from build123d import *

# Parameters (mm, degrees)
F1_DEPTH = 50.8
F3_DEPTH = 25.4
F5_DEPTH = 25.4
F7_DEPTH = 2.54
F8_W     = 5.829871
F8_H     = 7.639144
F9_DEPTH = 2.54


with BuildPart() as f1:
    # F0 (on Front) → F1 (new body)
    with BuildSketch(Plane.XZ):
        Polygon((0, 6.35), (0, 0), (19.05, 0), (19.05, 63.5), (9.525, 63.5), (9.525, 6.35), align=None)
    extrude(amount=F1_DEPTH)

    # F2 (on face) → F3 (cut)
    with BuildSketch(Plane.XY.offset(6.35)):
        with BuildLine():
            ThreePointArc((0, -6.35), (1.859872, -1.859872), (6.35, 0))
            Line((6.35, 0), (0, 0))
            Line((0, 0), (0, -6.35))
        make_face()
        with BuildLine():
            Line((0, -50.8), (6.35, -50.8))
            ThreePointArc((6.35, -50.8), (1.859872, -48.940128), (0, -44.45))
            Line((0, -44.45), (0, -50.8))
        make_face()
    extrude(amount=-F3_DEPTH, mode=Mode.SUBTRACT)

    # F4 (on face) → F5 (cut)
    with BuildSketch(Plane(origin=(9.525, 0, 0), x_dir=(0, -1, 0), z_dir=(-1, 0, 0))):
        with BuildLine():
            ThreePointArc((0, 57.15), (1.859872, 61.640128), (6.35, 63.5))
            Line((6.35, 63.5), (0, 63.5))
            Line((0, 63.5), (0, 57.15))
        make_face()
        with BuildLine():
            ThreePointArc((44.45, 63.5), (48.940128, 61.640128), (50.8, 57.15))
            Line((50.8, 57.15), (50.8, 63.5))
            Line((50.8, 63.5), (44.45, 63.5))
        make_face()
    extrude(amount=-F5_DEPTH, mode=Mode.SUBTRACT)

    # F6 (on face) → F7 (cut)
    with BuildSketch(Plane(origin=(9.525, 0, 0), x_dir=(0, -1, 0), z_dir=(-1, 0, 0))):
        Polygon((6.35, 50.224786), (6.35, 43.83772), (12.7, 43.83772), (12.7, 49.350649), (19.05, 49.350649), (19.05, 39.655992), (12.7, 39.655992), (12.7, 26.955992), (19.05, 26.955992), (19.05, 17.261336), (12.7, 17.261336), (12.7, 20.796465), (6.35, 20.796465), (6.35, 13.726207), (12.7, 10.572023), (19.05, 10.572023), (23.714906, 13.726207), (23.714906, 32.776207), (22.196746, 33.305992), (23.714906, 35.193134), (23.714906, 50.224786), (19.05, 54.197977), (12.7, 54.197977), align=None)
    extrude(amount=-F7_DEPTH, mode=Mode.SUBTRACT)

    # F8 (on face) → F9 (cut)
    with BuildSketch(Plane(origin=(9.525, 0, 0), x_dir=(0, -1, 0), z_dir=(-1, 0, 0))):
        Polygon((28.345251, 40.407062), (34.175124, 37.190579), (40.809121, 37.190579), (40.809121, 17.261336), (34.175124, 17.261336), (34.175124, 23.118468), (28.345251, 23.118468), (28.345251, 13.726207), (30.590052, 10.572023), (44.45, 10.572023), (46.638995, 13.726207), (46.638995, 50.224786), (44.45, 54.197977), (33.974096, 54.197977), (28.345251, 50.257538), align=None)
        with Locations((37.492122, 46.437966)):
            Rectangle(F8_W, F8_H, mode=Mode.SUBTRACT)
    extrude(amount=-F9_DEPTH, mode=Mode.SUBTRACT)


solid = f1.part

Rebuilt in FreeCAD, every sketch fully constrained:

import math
import FreeCAD as App
import Part
import Sketcher
Q = App.Units.Quantity


def add_polygon(sketch, points):
    """Adds a closed chain of lines whose ends are joined by coincident constraints."""
    first, n = sketch.GeometryCount, len(points)
    for a, b in zip(points, points[1:] + points[:1]):
        sketch.addGeometry(Part.LineSegment(App.Vector(*a, 0), App.Vector(*b, 0)), False)
    for i in range(n):
        sketch.addConstraint(Sketcher.Constraint("Coincident", first + i, 2, first + (i + 1) % n, 1))

doc = App.newDocument("Part")
body = doc.addObject("PartDesign::Body", "Body")

# Sketch on XZ plane
sketch1 = doc.addObject("Sketcher::SketchObject", "Sketch")
body.addObject(sketch1)
sketch1.AttachmentSupport = (doc.XZ_Plane, [""])
sketch1.MapMode = "FlatFace"
add_polygon(sketch1, [(0, 6), (0, 0), (19, 0), (19, 64), (10, 64), (10, 6)])  # lines 0-5
sketch1.addConstraint([
    Sketcher.Constraint("Vertical", 0),
    Sketcher.Constraint("Horizontal", 1),
    Sketcher.Constraint("Vertical", 2),
    Sketcher.Constraint("Horizontal", 3),
    Sketcher.Constraint("Vertical", 4),
    Sketcher.Constraint("Horizontal", 5),
    Sketcher.Constraint("Coincident", 0, 2, -1, 1),
    Sketcher.Constraint("Equal", 3, 5),
    Sketcher.Constraint("DistanceY", 2, 1, 2, 2, Q("2.5 in")),
    Sketcher.Constraint("DistanceX", 1, 1, 1, 2, Q("0.75 in")),
    Sketcher.Constraint("DistanceY", 0, 2, 0, 1, Q("0.25 in")),
])
pad1 = doc.addObject("PartDesign::Pad", "Pad")
body.addObject(pad1)
pad1.Profile = sketch1
pad1.Length = Q("2 in")

# Sketch on XY plane
sketch2 = doc.addObject("Sketcher::SketchObject", "Sketch001")
body.addObject(sketch2)
sketch2.AttachmentSupport = (doc.XY_Plane, [""])
sketch2.MapMode = "FlatFace"
sketch2.AttachmentOffset = App.Placement(App.Vector(0, 0, 0.25 * 25.4), App.Rotation())
sketch2.addGeometry([
    Part.ArcOfCircle(Part.Circle(App.Vector(6, -6, 0), App.Vector(0, 0, 1), 6), math.radians(90), math.radians(180)),  # 0
    Part.LineSegment(App.Vector(6, 0, 0), App.Vector(0, 0, 0)),  # 1
    Part.LineSegment(App.Vector(0, 0, 0), App.Vector(0, -6, 0)),  # 2
    Part.LineSegment(App.Vector(0, -51, 0), App.Vector(6, -51, 0)),  # 3
    Part.ArcOfCircle(Part.Circle(App.Vector(6, -44, 0), App.Vector(0, 0, 1), 6), math.radians(-180), math.radians(-90)),  # 4
    Part.LineSegment(App.Vector(0, -44, 0), App.Vector(0, -51, 0)),  # 5
], False)
sketch2.addConstraint([
    Sketcher.Constraint("Tangent", 0, 1, 1, 1),
    Sketcher.Constraint("Coincident", 1, 2, 2, 1),
    Sketcher.Constraint("Tangent", 2, 2, 0, 2),
    Sketcher.Constraint("Tangent", 3, 2, 4, 2),
    Sketcher.Constraint("Tangent", 4, 1, 5, 1),
    Sketcher.Constraint("Coincident", 5, 2, 3, 1),
    Sketcher.Constraint("Horizontal", 1),
    Sketcher.Constraint("Vertical", 2),
    Sketcher.Constraint("Horizontal", 3),
    Sketcher.Constraint("Vertical", 5),
    Sketcher.Constraint("Coincident", 1, 2, -1, 1),
    Sketcher.Constraint("Equal", 0, 4),
    Sketcher.Constraint("PointOnObject", 4, 1, -2),
    Sketcher.Constraint("Radius", 0, Q("0.25 in")),
    Sketcher.Constraint("DistanceY", 3, 2, -1, 1, Q("2 in")),
])
pocket1 = doc.addObject("PartDesign::Pocket", "Pocket")
body.addObject(pocket1)
pocket1.Profile = sketch2
pocket1.Length = Q("1 in")

# Sketch on YZ plane
sketch3 = doc.addObject("Sketcher::SketchObject", "Sketch002")
body.addObject(sketch3)
sketch3.AttachmentSupport = (doc.YZ_Plane, [""])
sketch3.MapMode = "FlatFace"
sketch3.AttachmentOffset = App.Placement(App.Vector(0, 0, 0.375 * 25.4), App.Rotation())
sketch3.addGeometry([
    Part.ArcOfCircle(Part.Circle(App.Vector(-6, 57, 0), App.Vector(0, 0, 1), 6), math.radians(0), math.radians(90)),  # 0
    Part.LineSegment(App.Vector(-6, 64, 0), App.Vector(0, 64, 0)),  # 1
    Part.LineSegment(App.Vector(0, 64, 0), App.Vector(0, 57, 0)),  # 2
    Part.ArcOfCircle(Part.Circle(App.Vector(-44, 57, 0), App.Vector(0, 0, 1), 6), math.radians(90), math.radians(180)),  # 3
    Part.LineSegment(App.Vector(-51, 57, 0), App.Vector(-51, 64, 0)),  # 4
    Part.LineSegment(App.Vector(-51, 64, 0), App.Vector(-44, 64, 0)),  # 5
], False)
sketch3.addConstraint([
    Sketcher.Constraint("Tangent", 0, 2, 1, 1),
    Sketcher.Constraint("Coincident", 1, 2, 2, 1),
    Sketcher.Constraint("Tangent", 2, 2, 0, 1),
    Sketcher.Constraint("Tangent", 3, 2, 4, 1),
    Sketcher.Constraint("Coincident", 4, 2, 5, 1),
    Sketcher.Constraint("Tangent", 5, 2, 3, 1),
    Sketcher.Constraint("Horizontal", 1),
    Sketcher.Constraint("Vertical", 2),
    Sketcher.Constraint("Vertical", 4),
    Sketcher.Constraint("Horizontal", 5),
    Sketcher.Constraint("Equal", 0, 3),
    Sketcher.Constraint("PointOnObject", 1, 2, -2),
    Sketcher.Constraint("Horizontal", 0, 3, 3, 3),
    Sketcher.Constraint("Radius", 0, Q("0.25 in")),
    Sketcher.Constraint("DistanceX", 3, 2, -1, 1, Q("2 in")),
    Sketcher.Constraint("DistanceY", -1, 1, 0, 2, Q("2.5 in")),
])
pocket2 = doc.addObject("PartDesign::Pocket", "Pocket001")
body.addObject(pocket2)
pocket2.Profile = sketch3
pocket2.Length = Q("1 in")
pocket2.Reversed = True

# Sketch on YZ plane
sketch4 = doc.addObject("Sketcher::SketchObject", "Sketch003")
body.addObject(sketch4)
sketch4.AttachmentSupport = (doc.YZ_Plane, [""])
sketch4.MapMode = "FlatFace"
sketch4.AttachmentOffset = App.Placement(App.Vector(0, 0, 0.375 * 25.4), App.Rotation())
add_polygon(sketch4, [(-6.3, 50.2), (-6.3, 43.8), (-12.7, 43.8), (-12.7, 49.4), (-19.1, 49.4), (-19.1, 39.7), (-12.7, 39.7), (-12.7, 27), (-19.1, 27), (-19.1, 17.3), (-12.7, 17.3), (-12.7, 20.8), (-6.3, 20.8), (-6.3, 13.7), (-12.7, 10.6), (-19.1, 10.6), (-23.7, 13.7), (-23.7, 32.8), (-22.2, 33.3), (-23.7, 35.2), (-23.7, 50.2), (-19.1, 54.2), (-12.7, 54.2)])  # lines 0-22
sketch4.addConstraint([
    Sketcher.Constraint("Vertical", 0),
    Sketcher.Constraint("Horizontal", 1),
    Sketcher.Constraint("Vertical", 2),
    Sketcher.Constraint("Horizontal", 3),
    Sketcher.Constraint("Vertical", 4),
    Sketcher.Constraint("Horizontal", 5),
    Sketcher.Constraint("Vertical", 6),
    Sketcher.Constraint("Horizontal", 7),
    Sketcher.Constraint("Vertical", 8),
    Sketcher.Constraint("Horizontal", 9),
    Sketcher.Constraint("Vertical", 10),
    Sketcher.Constraint("Horizontal", 11),
    Sketcher.Constraint("Vertical", 12),
    Sketcher.Constraint("Horizontal", 14),
    Sketcher.Constraint("Vertical", 16),
    Sketcher.Constraint("Vertical", 19),
    Sketcher.Constraint("Horizontal", 21),
    Sketcher.Constraint("Horizontal", 12, 2, 15, 2),
    Sketcher.Constraint("Horizontal", 19, 2, 22, 2),
    Sketcher.Constraint("Vertical", 2, 2, 5, 2),
    Sketcher.Constraint("Vertical", 4, 2, 7, 2),
    Sketcher.Constraint("Vertical", 6, 2, 9, 2),
    Sketcher.Constraint("Vertical", 0, 2, 11, 2),
    Sketcher.Constraint("Vertical", 10, 2, 13, 2),
    Sketcher.Constraint("Vertical", 8, 2, 14, 2),
    Sketcher.Constraint("Vertical", 16, 2, 18, 2),
    Sketcher.Constraint("Vertical", 14, 2, 20, 2),
    Sketcher.Constraint("Vertical", 13, 2, 21, 2),
    Sketcher.Constraint("Equal", 1, 3),
    Sketcher.Constraint("Equal", 4, 8),
    Sketcher.Constraint("DistanceY", 6, 2, 6, 1, Q("0.5 in")),
    Sketcher.Constraint("DistanceX", 1, 2, 1, 1, Q("0.25 in")),
    Sketcher.Constraint("DistanceY", 16, 1, 16, 2, Q("0.75 in")),
    Sketcher.Constraint("DistanceX", 1, 2, -1, 1, Q("0.5 in")),
    Sketcher.Constraint("DistanceY", 17, 2, 4, 2, Q("0.25 in")),
    Sketcher.Constraint("Distance", 15, Q("0.2217001 in")),
    Sketcher.Constraint("DistanceY", 2, 1, 2, 2, 5.512929),
    Sketcher.Constraint("DistanceY", 10, 1, 10, 2, 3.535129),
    Sketcher.Constraint("DistanceY", 12, 2, 12, 1, 7.070258),
    Sketcher.Constraint("Distance", 13, 7.090231),
    Sketcher.Constraint("Distance", 20, 6.127609),
    Sketcher.Constraint("DistanceY", 0, 2, 0, 1, 6.387066),
    Sketcher.Constraint("DistanceY", 4, 2, 4, 1, 9.694657),
    Sketcher.Constraint("DistanceY", 19, 1, 19, 2, 15.031652),
    Sketcher.Constraint("DistanceY", -1, 1, 0, 2, 43.83772),
    Sketcher.Constraint("DistanceX", 16, 2, 17, 2, 1.51816),
])
pocket3 = doc.addObject("PartDesign::Pocket", "Pocket002")
body.addObject(pocket3)
pocket3.Profile = sketch4
pocket3.Length = Q("0.1 in")
pocket3.Reversed = True

# Sketch on YZ plane
sketch5 = doc.addObject("Sketcher::SketchObject", "Sketch004")
body.addObject(sketch5)
sketch5.AttachmentSupport = (doc.YZ_Plane, [""])
sketch5.MapMode = "FlatFace"
sketch5.AttachmentOffset = App.Placement(App.Vector(0, 0, 0.375 * 25.4), App.Rotation())
add_polygon(sketch5, [(-28.3, 40.4), (-34.2, 37.2), (-40.8, 37.2), (-40.8, 17.3), (-34.2, 17.3), (-34.2, 23.1), (-28.3, 23.1), (-28.3, 13.7), (-30.6, 10.6), (-44.5, 10.6), (-46.6, 13.7), (-46.6, 50.2), (-44.5, 54.2), (-34, 54.2), (-28.3, 50.3)])  # lines 0-14
add_polygon(sketch5, [(-40.4, 42.6), (-34.6, 42.6), (-34.6, 50.3), (-40.4, 50.3)])  # lines 15-18
sketch5.addConstraint([
    Sketcher.Constraint("Horizontal", 1),
    Sketcher.Constraint("Vertical", 2),
    Sketcher.Constraint("Horizontal", 3),
    Sketcher.Constraint("Vertical", 4),
    Sketcher.Constraint("Horizontal", 5),
    Sketcher.Constraint("Vertical", 6),
    Sketcher.Constraint("Horizontal", 8),
    Sketcher.Constraint("Vertical", 10),
    Sketcher.Constraint("Horizontal", 12),
    Sketcher.Constraint("Vertical", 14),
    Sketcher.Constraint("Horizontal", 15),
    Sketcher.Constraint("Vertical", 16),
    Sketcher.Constraint("Horizontal", 17),
    Sketcher.Constraint("Vertical", 18),
    Sketcher.Constraint("Horizontal", 6, 2, 9, 2),
    Sketcher.Constraint("Horizontal", 13, 2, 16, 2),
    Sketcher.Constraint("Vertical", 0, 2, 3, 2),
    Sketcher.Constraint("Vertical", 8, 2, 11, 2),
    Sketcher.Constraint("Vertical", 6, 2, 13, 2),
    Sketcher.Constraint("Equal", 5, 15),
    Sketcher.Constraint("DistanceX", 8, 2, -1, 1, Q("1.75 in")),
    Sketcher.Constraint("DistanceX", 8, 2, 8, 1, 13.859948),
    Sketcher.Constraint("DistanceX", 15, 1, 15, 2, 5.829871),
    Sketcher.Constraint("DistanceY", 6, 2, 6, 1, 9.392261),
    Sketcher.Constraint("DistanceY", 10, 1, 10, 2, 36.498579),
    Sketcher.Constraint("DistanceX", 7, 2, 6, 2, 2.244801),
    Sketcher.Constraint("DistanceY", 1, 2, 11, 2, 17.007398),
    Sketcher.Constraint("DistanceX", 10, 2, 12, 2, 12.664899),
    Sketcher.Constraint("DistanceX", 1, 2, 1, 1, 6.633997),
    Sketcher.Constraint("DistanceX", 12, 1, 12, 2, 10.475904),
    Sketcher.Constraint("DistanceY", 2, 2, 2, 1, 19.929243),
    Sketcher.Constraint("DistanceY", 4, 1, 4, 2, 5.857132),
    Sketcher.Constraint("DistanceY", 14, 2, 14, 1, 9.850476),
    Sketcher.Constraint("DistanceY", 16, 1, 16, 2, 7.639144),
    Sketcher.Constraint("DistanceY", -1, 1, 0, 2, 37.190579),
    Sketcher.Constraint("DistanceY", 13, 2, 12, 2, 3.940439),
    Sketcher.Constraint("DistanceX", 15, 2, 12, 2, 0.603091),
    Sketcher.Constraint("Distance", 7, 3.871435),
])
pocket4 = doc.addObject("PartDesign::Pocket", "Pocket003")
body.addObject(pocket4)
pocket4.Profile = sketch5
pocket4.Length = Q("0.1 in")
pocket4.Reversed = True

doc.recompute()
